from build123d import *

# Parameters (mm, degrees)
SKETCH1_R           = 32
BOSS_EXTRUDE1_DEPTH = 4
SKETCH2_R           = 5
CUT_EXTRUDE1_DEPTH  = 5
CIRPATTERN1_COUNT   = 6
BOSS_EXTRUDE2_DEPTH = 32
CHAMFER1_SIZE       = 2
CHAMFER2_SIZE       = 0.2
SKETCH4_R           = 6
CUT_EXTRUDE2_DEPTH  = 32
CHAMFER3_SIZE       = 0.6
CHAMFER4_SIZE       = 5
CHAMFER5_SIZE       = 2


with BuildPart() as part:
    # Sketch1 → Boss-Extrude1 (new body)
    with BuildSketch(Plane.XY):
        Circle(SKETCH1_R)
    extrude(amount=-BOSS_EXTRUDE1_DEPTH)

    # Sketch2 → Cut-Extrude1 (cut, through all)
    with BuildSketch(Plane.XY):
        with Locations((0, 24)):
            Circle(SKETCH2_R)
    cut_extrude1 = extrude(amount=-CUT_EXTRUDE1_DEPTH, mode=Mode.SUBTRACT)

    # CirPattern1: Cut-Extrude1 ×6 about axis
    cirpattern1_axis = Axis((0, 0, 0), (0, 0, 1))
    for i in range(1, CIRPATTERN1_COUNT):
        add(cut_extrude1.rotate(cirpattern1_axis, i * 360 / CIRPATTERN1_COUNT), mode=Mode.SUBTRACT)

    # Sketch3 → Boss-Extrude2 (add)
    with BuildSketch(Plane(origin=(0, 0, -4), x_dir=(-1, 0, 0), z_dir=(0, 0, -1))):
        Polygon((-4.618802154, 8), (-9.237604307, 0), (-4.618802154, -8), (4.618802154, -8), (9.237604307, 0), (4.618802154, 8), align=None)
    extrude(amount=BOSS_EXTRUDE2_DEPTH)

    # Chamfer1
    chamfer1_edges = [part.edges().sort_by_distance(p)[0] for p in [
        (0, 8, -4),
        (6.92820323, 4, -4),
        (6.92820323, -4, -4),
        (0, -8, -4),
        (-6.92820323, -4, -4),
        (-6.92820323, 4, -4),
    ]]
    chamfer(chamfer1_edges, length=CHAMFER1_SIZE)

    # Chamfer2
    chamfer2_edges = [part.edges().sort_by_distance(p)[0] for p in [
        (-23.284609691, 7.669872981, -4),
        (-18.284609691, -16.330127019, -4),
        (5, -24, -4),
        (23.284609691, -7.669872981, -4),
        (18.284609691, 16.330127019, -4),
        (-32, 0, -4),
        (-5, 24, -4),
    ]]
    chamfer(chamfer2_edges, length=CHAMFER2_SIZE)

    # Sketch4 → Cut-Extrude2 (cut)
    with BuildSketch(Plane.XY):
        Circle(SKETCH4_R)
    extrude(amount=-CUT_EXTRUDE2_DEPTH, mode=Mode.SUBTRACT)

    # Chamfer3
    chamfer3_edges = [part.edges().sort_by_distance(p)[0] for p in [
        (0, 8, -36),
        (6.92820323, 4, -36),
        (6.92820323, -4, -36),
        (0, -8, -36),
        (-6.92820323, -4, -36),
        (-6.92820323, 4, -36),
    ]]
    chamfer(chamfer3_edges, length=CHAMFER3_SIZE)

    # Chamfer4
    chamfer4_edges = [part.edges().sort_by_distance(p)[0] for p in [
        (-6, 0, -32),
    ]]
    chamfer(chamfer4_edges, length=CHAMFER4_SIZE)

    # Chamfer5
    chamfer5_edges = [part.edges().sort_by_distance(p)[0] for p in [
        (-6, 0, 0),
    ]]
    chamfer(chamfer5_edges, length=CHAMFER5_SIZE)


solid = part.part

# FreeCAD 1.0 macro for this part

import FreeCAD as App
import Part
import Sketcher
Q = App.Units.Quantity


def edges_at(feature, points):
    """Names of the edges that pass closest to the given points."""
    edges = feature.Shape.Edges
    near = lambda p: min(range(len(edges)), key=lambda i: edges[i].distToShape(Part.Vertex(*p))[0])
    return sorted({f"Edge{near(p) + 1}" for p in points})


def add_polygon(sketch, points):
    """Adds a closed chain of lines whose ends are joined by coincident constraints."""
    first, n = sketch.GeometryCount, len(points)
    for a, b in zip(points, points[1:] + points[:1]):
        sketch.addGeometry(Part.LineSegment(App.Vector(*a, 0), App.Vector(*b, 0)), False)
    for i in range(n):
        sketch.addConstraint(Sketcher.Constraint("Coincident", first + i, 2, first + (i + 1) % n, 1))

doc = App.newDocument("Part")
body = doc.addObject("PartDesign::Body", "Body")

# Sketch on XY plane
sketch1 = body.newObject("Sketcher::SketchObject", "Sketch")
sketch1.AttachmentSupport = (doc.getObject("XY_Plane"), [""])
sketch1.MapMode = "FlatFace"
sketch1.addGeometry(Part.Circle(App.Vector(0, 0, 0), App.Vector(0, 0, 1), 32), False)
sketch1.addConstraint([
    Sketcher.Constraint("Coincident", 0, 3, -1, 1),
    Sketcher.Constraint("Diameter", 0, 64.0),
])
pad1 = body.newObject("PartDesign::Pad", "Pad")
pad1.Profile = sketch1
pad1.Length = 4
pad1.Reversed = True

# Sketch on XY plane
sketch2 = body.newObject("Sketcher::SketchObject", "Sketch001")
sketch2.AttachmentSupport = (doc.getObject("XY_Plane"), [""])
sketch2.MapMode = "FlatFace"
sketch2.addGeometry(Part.Circle(App.Vector(0, 24, 0), App.Vector(0, 0, 1), 5), False)
sketch2.addConstraint([
    Sketcher.Constraint("PointOnObject", 0, 3, -2),
    Sketcher.Constraint("Diameter", 0, 10.0),
    Sketcher.Constraint("DistanceY", -1, 1, 0, 3, 24.0),
])
pocket1 = body.newObject("PartDesign::Pocket", "Pocket")
pocket1.Profile = sketch2
pocket1.Type = "ThroughAll"
doc.recompute()

polarpattern = body.newObject("PartDesign::PolarPattern", "PolarPattern")
polarpattern.Originals = [pocket1]
polarpattern.Axis = (doc.getObject("Z_Axis"), [""])
polarpattern.Angle = 360
polarpattern.Occurrences = 6
body.Tip = polarpattern

# Sketch on XY plane
sketch3 = body.newObject("Sketcher::SketchObject", "Sketch002")
sketch3.AttachmentSupport = (doc.getObject("XY_Plane"), [""])
sketch3.MapMode = "FlatFace"
sketch3.AttachmentOffset = App.Placement(App.Vector(0, 0, -4), App.Rotation())
add_polygon(sketch3, [(4.618802, 8), (9.237604, 0), (4.618802, -8), (-4.618802, -8), (-9.237604, 0), (-4.618802, 8)])  # lines 0-5
sketch3.addConstraint([
    Sketcher.Constraint("Horizontal", 2),
    Sketcher.Constraint("Horizontal", 5),
    Sketcher.Constraint("Symmetric", 0, 2, 3, 2, -1, 1),
    Sketcher.Constraint("Symmetric", 1, 2, 4, 2, -1, 1),
    Sketcher.Constraint("PointOnObject", 0, 2, -1),
    Sketcher.Constraint("Parallel", 0, 3),
    Sketcher.Constraint("Vertical", 2, 2, 4, 2),
    Sketcher.Constraint("Angle", 0, Q("-60 deg")),
    Sketcher.Constraint("DistanceY", 1, 2, -1, 1, 8.0),
    Sketcher.Constraint("DistanceX", 2, 2, 2, 1, 9.237604),
])
pad2 = body.newObject("PartDesign::Pad", "Pad001")
pad2.Profile = sketch3
pad2.Length = 32
pad2.Reversed = True
doc.recompute()

chamfer = body.newObject("PartDesign::Chamfer", "Chamfer")
chamfer.Base = (pad2, edges_at(pad2, [
    (0, 8, -4),
    (6.928, 4, -4),
    (6.928, -4, -4),
    (0, -8, -4),
    (-6.928, -4, -4),
    (-6.928, 4, -4),
]))
chamfer.Size = 2
doc.recompute()

chamfer2 = body.newObject("PartDesign::Chamfer", "Chamfer001")
chamfer2.Base = (chamfer, edges_at(chamfer, [
    (-23.285, 7.67, -4),
    (-18.285, -16.33, -4),
    (5, -24, -4),
    (23.285, -7.67, -4),
    (18.285, 16.33, -4),
    (-32, 0, -4),
    (-5, 24, -4),
]))
chamfer2.Size = 0.2

# Sketch on XY plane
sketch4 = body.newObject("Sketcher::SketchObject", "Sketch003")
sketch4.AttachmentSupport = (doc.getObject("XY_Plane"), [""])
sketch4.MapMode = "FlatFace"
sketch4.addGeometry(Part.Circle(App.Vector(0, 0, 0), App.Vector(0, 0, 1), 6), False)
sketch4.addConstraint([
    Sketcher.Constraint("Coincident", 0, 3, -1, 1),
    Sketcher.Constraint("Diameter", 0, 12.0),
])
pocket2 = body.newObject("PartDesign::Pocket", "Pocket001")
pocket2.Profile = sketch4
pocket2.Length = 32
doc.recompute()

chamfer3 = body.newObject("PartDesign::Chamfer", "Chamfer002")
chamfer3.Base = (pocket2, edges_at(pocket2, [
    (0, 8, -36),
    (6.928, 4, -36),
    (6.928, -4, -36),
    (0, -8, -36),
    (-6.928, -4, -36),
    (-6.928, 4, -36),
]))
chamfer3.Size = 0.6
doc.recompute()

chamfer4 = body.newObject("PartDesign::Chamfer", "Chamfer003")
chamfer4.Base = (chamfer3, edges_at(chamfer3, [(-6, 0, -32)]))
chamfer4.Size = 5
doc.recompute()

chamfer5 = body.newObject("PartDesign::Chamfer", "Chamfer004")
chamfer5.Base = (chamfer4, edges_at(chamfer4, [(-6, 0, 0)]))
chamfer5.Size = 2

doc.recompute()
